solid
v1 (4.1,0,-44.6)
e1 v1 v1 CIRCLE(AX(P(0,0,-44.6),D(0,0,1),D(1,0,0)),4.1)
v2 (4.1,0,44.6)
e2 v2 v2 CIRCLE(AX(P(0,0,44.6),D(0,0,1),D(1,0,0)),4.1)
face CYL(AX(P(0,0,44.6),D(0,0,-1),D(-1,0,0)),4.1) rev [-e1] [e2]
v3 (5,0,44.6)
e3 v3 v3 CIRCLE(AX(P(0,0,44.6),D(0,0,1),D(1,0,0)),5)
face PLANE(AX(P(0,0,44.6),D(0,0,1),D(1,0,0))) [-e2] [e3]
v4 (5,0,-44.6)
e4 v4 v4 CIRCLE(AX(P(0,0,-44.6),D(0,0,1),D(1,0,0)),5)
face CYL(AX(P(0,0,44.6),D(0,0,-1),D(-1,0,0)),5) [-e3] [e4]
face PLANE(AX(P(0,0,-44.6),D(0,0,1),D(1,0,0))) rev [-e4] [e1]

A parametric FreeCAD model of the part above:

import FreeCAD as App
import Part
import Sketcher
from FreeCAD import Vector

doc = App.newDocument("Part")
body = doc.addObject("PartDesign::Body", "Body")

# Sketch on XY plane
sketch1 = doc.addObject("Sketcher::SketchObject", "Sketch")
body.addObject(sketch1)
sketch1.AttachmentSupport = (doc.XY_Plane, [""])
sketch1.MapMode = "FlatFace"
sketch1.addGeometry(Part.Circle(Vector(0, 0, 0), Vector(0, 0, 1), 5), False)
sketch1.addGeometry(Part.Circle(Vector(0, 0, 0), Vector(0, 0, 1), 4.1), False)
sketch1.addConstraint(Sketcher.Constraint("Coincident", 0, 3, -1, 1))
sketch1.addConstraint(Sketcher.Constraint("Coincident", 1, 3, -1, 1))
sketch1.addConstraint(Sketcher.Constraint("Diameter", 0, 10.0))
sketch1.addConstraint(Sketcher.Constraint("Diameter", 1, 8.2))
pad1 = doc.addObject("PartDesign::Pad", "Pad")
body.addObject(pad1)
pad1.Profile = sketch1
pad1.Length = 89.2
pad1.Midplane = True

doc.recompute()
